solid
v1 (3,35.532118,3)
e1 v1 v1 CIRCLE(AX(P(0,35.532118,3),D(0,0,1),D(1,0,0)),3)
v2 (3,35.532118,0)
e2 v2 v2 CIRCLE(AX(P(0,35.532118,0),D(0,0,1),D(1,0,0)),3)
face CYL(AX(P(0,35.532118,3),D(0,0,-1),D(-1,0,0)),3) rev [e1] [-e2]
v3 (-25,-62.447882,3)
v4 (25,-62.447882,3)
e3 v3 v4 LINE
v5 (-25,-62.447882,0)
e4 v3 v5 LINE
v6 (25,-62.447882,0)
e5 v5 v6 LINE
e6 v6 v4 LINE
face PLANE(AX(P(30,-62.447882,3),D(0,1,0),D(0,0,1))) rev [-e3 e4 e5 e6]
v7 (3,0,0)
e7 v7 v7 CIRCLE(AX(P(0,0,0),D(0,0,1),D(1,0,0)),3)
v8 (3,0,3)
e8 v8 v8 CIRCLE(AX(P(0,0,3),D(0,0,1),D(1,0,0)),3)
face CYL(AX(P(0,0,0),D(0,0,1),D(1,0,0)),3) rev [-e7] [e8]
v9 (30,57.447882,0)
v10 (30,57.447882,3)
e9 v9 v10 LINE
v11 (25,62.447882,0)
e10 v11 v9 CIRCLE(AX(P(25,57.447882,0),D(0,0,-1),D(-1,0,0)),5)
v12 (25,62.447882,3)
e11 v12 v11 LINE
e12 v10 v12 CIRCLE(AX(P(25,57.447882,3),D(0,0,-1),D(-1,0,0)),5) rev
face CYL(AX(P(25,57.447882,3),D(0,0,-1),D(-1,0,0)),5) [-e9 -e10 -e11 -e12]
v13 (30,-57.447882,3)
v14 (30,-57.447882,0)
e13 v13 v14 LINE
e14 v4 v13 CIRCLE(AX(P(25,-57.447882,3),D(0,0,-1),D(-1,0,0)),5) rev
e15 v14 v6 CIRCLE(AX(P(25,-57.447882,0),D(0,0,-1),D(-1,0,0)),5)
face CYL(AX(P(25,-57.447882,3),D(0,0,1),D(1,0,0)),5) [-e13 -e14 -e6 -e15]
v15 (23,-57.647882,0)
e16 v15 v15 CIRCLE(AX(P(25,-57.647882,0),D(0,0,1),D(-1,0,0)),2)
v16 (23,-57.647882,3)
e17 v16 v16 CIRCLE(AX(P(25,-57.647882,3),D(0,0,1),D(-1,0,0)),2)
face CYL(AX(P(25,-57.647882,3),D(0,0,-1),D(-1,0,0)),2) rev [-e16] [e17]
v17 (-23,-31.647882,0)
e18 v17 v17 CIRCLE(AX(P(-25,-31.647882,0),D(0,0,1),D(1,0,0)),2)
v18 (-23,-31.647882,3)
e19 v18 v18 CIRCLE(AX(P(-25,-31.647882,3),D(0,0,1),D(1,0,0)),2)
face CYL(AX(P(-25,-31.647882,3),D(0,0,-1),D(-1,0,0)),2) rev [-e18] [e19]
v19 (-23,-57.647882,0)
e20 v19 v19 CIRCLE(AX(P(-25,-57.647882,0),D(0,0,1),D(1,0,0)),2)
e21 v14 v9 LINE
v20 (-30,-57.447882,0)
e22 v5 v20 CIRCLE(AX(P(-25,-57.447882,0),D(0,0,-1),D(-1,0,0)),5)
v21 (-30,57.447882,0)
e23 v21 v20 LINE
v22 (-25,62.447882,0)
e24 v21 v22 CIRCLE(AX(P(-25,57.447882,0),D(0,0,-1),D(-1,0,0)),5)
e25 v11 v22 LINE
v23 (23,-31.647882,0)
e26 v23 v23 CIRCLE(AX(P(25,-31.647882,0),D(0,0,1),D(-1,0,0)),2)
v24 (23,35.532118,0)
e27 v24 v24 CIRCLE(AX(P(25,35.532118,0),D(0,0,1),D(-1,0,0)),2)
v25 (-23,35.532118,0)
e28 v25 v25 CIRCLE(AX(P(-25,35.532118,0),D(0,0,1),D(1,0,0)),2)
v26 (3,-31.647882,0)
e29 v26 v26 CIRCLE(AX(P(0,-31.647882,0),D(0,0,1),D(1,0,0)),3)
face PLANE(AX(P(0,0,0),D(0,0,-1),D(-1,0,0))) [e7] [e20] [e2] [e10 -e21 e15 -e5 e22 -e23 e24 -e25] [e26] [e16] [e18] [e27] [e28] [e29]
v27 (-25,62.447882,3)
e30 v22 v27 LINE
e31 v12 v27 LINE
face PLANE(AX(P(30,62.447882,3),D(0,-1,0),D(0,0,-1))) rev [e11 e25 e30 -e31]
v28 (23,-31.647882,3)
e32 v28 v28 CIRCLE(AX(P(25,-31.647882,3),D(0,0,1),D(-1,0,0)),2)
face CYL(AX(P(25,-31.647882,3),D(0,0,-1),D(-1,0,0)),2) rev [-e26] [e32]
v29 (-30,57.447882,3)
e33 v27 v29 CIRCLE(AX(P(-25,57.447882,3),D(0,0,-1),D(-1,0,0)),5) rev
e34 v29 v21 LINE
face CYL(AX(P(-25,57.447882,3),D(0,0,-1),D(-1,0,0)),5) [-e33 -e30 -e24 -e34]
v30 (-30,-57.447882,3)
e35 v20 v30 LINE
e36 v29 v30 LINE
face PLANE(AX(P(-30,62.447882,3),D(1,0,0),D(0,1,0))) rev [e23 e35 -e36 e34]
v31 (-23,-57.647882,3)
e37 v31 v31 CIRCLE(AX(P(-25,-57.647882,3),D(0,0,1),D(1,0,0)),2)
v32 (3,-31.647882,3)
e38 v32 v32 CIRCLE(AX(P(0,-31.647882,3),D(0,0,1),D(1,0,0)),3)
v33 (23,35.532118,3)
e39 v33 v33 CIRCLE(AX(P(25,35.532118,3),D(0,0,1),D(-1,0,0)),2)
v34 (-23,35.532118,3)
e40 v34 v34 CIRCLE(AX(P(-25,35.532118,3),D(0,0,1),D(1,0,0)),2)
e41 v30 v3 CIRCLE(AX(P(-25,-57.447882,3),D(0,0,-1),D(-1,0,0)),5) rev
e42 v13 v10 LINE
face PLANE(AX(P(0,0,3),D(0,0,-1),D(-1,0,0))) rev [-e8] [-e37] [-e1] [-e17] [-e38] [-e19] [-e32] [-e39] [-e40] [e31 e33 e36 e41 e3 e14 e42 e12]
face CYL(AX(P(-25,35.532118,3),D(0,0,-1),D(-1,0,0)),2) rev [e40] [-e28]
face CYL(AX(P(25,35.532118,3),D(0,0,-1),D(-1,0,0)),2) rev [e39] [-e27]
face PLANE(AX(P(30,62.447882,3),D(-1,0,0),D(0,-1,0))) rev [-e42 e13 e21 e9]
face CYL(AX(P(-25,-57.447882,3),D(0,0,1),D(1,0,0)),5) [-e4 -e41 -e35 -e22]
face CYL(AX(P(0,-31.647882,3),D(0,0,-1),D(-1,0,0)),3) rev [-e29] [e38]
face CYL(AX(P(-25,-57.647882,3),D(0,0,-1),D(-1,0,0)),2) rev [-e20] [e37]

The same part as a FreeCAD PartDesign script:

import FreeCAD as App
import Part
import Sketcher
from FreeCAD import Vector


def edges_at(feature, points):
    """Names of the edges that pass closest to the given points."""
    edges = feature.Shape.Edges
    near = lambda p: min(range(len(edges)), key=lambda i: edges[i].distToShape(Part.Vertex(*p))[0])
    return sorted({f"Edge{near(p) + 1}" for p in points})


def add_polygon(sketch, points):
    """Adds a closed chain of lines whose ends are joined by coincident constraints."""
    first, n = sketch.GeometryCount, len(points)
    for a, b in zip(points, points[1:] + points[:1]):
        sketch.addGeometry(Part.LineSegment(App.Vector(*a, 0), App.Vector(*b, 0)), False)
    for i in range(n):
        sketch.addConstraint(Sketcher.Constraint("Coincident", first + i, 2, first + (i + 1) % n, 1))

doc = App.newDocument("Part")
body = doc.addObject("PartDesign::Body", "Body")

sketch1 = body.newObject("Sketcher::SketchObject", "Sketch")
sketch1.AttachmentSupport = (doc.getObject("XY_Plane"), [""])
sketch1.MapMode = "FlatFace"
add_polygon(sketch1, [(-30, 62.447882), (-30, -62.447882), (30, -62.447882), (30, 62.447882)])
sketch1.addGeometry(Part.Circle(Vector(-25, -57.647882, 0), Vector(0, 0, 1), 2), False)
sketch1.addGeometry(Part.Circle(Vector(-25, -31.647882, 0), Vector(0, 0, 1), 2), False)
sketch1.addGeometry(Part.Circle(Vector(25, -57.647882, 0), Vector(0, 0, 1), 2), False)
sketch1.addGeometry(Part.Circle(Vector(0, -31.647882, 0), Vector(0, 0, 1), 3), False)
sketch1.addGeometry(Part.Circle(Vector(25, -31.647882, 0), Vector(0, 0, 1), 2), False)
sketch1.addGeometry(Part.Circle(Vector(-25, 35.532118, 0), Vector(0, 0, 1), 2), False)
sketch1.addGeometry(Part.Circle(Vector(0, 35.532118, 0), Vector(0, 0, 1), 3), False)
sketch1.addGeometry(Part.Circle(Vector(25, 35.532118, 0), Vector(0, 0, 1), 2), False)
sketch1.addConstraint([
    Sketcher.Constraint("Vertical", 0),
    Sketcher.Constraint("Horizontal", 1),
    Sketcher.Constraint("Vertical", 2),
    Sketcher.Constraint("Horizontal", 3),
    Sketcher.Constraint("Equal", 4, 5),
    Sketcher.Constraint("Equal", 5, 6),
    Sketcher.Constraint("Equal", 6, 8),
    Sketcher.Constraint("Equal", 8, 9),
    Sketcher.Constraint("Equal", 7, 10),
    Sketcher.Constraint("Equal", 9, 11),
    Sketcher.Constraint("Symmetric", 0, 2, 2, 2, -1, 1),
    Sketcher.Constraint("Symmetric", 4, 3, 6, 3, -2),
    Sketcher.Constraint("Symmetric", 5, 3, 8, 3, -2),
    Sketcher.Constraint("Symmetric", 9, 3, 11, 3, -2),
    Sketcher.Constraint("PointOnObject", 7, 3, -2),
    Sketcher.Constraint("PointOnObject", 10, 3, -2),
    Sketcher.Constraint("Horizontal", 5, 3, 7, 3),
    Sketcher.Constraint("Horizontal", 9, 3, 10, 3),
    Sketcher.Constraint("Vertical", 4, 3, 5, 3),
    Sketcher.Constraint("Vertical", 5, 3, 9, 3),
    Sketcher.Constraint("Diameter", 4, 4.0),
    Sketcher.Constraint("Diameter", 7, 6.0),
    Sketcher.Constraint("DistanceX", 1, 1, 1, 2, 60.0),
    Sketcher.Constraint("DistanceX", 4, 3, -1, 1, 25.0),
    Sketcher.Constraint("DistanceY", 4, 3, 5, 3, 26.0),
    Sketcher.Constraint("DistanceY", 0, 2, 4, 3, 4.8),
    Sketcher.Constraint("DistanceY", 5, 3, 9, 3, 67.18),
    Sketcher.Constraint("DistanceY", 0, 2, 0, 1, 124.895764),
])
pad1 = body.newObject("PartDesign::Pad", "Pad")
pad1.Profile = sketch1
pad1.Length = 3
doc.recompute()

fillet = body.newObject("PartDesign::Fillet", "Fillet")
fillet.Base = (pad1, edges_at(pad1, [(-30, 62.448, 1.5)]))
fillet.Radius = 5
doc.recompute()

fillet2 = body.newObject("PartDesign::Fillet", "Fillet001")
fillet2.Base = (fillet, edges_at(fillet, [(30, 62.448, 1.5)]))
fillet2.Radius = 5
doc.recompute()

fillet3 = body.newObject("PartDesign::Fillet", "Fillet002")
fillet3.Base = (fillet2, edges_at(fillet2, [(30, -62.448, 1.5)]))
fillet3.Radius = 5
doc.recompute()

fillet4 = body.newObject("PartDesign::Fillet", "Fillet003")
fillet4.Base = (fillet3, edges_at(fillet3, [(-30, -62.448, 1.5)]))
fillet4.Radius = 5

sketch2 = body.newObject("Sketcher::SketchObject", "Sketch001")
sketch2.AttachmentSupport = (doc.getObject("XY_Plane"), [""])
sketch2.MapMode = "FlatFace"
sketch2.AttachmentOffset = App.Placement(Vector(0, 0, 3), App.Rotation())
sketch2.addGeometry(Part.Circle(Vector(0, 0, 0), Vector(0, 0, 1), 3), False)
sketch2.addConstraint([
    Sketcher.Constraint("Coincident", 0, 3, -1, 1),
    Sketcher.Constraint("Diameter", 0, 6.0),
])
pocket1 = body.newObject("PartDesign::Pocket", "Pocket")
pocket1.Profile = sketch2
pocket1.Length = 3

doc.recompute()
